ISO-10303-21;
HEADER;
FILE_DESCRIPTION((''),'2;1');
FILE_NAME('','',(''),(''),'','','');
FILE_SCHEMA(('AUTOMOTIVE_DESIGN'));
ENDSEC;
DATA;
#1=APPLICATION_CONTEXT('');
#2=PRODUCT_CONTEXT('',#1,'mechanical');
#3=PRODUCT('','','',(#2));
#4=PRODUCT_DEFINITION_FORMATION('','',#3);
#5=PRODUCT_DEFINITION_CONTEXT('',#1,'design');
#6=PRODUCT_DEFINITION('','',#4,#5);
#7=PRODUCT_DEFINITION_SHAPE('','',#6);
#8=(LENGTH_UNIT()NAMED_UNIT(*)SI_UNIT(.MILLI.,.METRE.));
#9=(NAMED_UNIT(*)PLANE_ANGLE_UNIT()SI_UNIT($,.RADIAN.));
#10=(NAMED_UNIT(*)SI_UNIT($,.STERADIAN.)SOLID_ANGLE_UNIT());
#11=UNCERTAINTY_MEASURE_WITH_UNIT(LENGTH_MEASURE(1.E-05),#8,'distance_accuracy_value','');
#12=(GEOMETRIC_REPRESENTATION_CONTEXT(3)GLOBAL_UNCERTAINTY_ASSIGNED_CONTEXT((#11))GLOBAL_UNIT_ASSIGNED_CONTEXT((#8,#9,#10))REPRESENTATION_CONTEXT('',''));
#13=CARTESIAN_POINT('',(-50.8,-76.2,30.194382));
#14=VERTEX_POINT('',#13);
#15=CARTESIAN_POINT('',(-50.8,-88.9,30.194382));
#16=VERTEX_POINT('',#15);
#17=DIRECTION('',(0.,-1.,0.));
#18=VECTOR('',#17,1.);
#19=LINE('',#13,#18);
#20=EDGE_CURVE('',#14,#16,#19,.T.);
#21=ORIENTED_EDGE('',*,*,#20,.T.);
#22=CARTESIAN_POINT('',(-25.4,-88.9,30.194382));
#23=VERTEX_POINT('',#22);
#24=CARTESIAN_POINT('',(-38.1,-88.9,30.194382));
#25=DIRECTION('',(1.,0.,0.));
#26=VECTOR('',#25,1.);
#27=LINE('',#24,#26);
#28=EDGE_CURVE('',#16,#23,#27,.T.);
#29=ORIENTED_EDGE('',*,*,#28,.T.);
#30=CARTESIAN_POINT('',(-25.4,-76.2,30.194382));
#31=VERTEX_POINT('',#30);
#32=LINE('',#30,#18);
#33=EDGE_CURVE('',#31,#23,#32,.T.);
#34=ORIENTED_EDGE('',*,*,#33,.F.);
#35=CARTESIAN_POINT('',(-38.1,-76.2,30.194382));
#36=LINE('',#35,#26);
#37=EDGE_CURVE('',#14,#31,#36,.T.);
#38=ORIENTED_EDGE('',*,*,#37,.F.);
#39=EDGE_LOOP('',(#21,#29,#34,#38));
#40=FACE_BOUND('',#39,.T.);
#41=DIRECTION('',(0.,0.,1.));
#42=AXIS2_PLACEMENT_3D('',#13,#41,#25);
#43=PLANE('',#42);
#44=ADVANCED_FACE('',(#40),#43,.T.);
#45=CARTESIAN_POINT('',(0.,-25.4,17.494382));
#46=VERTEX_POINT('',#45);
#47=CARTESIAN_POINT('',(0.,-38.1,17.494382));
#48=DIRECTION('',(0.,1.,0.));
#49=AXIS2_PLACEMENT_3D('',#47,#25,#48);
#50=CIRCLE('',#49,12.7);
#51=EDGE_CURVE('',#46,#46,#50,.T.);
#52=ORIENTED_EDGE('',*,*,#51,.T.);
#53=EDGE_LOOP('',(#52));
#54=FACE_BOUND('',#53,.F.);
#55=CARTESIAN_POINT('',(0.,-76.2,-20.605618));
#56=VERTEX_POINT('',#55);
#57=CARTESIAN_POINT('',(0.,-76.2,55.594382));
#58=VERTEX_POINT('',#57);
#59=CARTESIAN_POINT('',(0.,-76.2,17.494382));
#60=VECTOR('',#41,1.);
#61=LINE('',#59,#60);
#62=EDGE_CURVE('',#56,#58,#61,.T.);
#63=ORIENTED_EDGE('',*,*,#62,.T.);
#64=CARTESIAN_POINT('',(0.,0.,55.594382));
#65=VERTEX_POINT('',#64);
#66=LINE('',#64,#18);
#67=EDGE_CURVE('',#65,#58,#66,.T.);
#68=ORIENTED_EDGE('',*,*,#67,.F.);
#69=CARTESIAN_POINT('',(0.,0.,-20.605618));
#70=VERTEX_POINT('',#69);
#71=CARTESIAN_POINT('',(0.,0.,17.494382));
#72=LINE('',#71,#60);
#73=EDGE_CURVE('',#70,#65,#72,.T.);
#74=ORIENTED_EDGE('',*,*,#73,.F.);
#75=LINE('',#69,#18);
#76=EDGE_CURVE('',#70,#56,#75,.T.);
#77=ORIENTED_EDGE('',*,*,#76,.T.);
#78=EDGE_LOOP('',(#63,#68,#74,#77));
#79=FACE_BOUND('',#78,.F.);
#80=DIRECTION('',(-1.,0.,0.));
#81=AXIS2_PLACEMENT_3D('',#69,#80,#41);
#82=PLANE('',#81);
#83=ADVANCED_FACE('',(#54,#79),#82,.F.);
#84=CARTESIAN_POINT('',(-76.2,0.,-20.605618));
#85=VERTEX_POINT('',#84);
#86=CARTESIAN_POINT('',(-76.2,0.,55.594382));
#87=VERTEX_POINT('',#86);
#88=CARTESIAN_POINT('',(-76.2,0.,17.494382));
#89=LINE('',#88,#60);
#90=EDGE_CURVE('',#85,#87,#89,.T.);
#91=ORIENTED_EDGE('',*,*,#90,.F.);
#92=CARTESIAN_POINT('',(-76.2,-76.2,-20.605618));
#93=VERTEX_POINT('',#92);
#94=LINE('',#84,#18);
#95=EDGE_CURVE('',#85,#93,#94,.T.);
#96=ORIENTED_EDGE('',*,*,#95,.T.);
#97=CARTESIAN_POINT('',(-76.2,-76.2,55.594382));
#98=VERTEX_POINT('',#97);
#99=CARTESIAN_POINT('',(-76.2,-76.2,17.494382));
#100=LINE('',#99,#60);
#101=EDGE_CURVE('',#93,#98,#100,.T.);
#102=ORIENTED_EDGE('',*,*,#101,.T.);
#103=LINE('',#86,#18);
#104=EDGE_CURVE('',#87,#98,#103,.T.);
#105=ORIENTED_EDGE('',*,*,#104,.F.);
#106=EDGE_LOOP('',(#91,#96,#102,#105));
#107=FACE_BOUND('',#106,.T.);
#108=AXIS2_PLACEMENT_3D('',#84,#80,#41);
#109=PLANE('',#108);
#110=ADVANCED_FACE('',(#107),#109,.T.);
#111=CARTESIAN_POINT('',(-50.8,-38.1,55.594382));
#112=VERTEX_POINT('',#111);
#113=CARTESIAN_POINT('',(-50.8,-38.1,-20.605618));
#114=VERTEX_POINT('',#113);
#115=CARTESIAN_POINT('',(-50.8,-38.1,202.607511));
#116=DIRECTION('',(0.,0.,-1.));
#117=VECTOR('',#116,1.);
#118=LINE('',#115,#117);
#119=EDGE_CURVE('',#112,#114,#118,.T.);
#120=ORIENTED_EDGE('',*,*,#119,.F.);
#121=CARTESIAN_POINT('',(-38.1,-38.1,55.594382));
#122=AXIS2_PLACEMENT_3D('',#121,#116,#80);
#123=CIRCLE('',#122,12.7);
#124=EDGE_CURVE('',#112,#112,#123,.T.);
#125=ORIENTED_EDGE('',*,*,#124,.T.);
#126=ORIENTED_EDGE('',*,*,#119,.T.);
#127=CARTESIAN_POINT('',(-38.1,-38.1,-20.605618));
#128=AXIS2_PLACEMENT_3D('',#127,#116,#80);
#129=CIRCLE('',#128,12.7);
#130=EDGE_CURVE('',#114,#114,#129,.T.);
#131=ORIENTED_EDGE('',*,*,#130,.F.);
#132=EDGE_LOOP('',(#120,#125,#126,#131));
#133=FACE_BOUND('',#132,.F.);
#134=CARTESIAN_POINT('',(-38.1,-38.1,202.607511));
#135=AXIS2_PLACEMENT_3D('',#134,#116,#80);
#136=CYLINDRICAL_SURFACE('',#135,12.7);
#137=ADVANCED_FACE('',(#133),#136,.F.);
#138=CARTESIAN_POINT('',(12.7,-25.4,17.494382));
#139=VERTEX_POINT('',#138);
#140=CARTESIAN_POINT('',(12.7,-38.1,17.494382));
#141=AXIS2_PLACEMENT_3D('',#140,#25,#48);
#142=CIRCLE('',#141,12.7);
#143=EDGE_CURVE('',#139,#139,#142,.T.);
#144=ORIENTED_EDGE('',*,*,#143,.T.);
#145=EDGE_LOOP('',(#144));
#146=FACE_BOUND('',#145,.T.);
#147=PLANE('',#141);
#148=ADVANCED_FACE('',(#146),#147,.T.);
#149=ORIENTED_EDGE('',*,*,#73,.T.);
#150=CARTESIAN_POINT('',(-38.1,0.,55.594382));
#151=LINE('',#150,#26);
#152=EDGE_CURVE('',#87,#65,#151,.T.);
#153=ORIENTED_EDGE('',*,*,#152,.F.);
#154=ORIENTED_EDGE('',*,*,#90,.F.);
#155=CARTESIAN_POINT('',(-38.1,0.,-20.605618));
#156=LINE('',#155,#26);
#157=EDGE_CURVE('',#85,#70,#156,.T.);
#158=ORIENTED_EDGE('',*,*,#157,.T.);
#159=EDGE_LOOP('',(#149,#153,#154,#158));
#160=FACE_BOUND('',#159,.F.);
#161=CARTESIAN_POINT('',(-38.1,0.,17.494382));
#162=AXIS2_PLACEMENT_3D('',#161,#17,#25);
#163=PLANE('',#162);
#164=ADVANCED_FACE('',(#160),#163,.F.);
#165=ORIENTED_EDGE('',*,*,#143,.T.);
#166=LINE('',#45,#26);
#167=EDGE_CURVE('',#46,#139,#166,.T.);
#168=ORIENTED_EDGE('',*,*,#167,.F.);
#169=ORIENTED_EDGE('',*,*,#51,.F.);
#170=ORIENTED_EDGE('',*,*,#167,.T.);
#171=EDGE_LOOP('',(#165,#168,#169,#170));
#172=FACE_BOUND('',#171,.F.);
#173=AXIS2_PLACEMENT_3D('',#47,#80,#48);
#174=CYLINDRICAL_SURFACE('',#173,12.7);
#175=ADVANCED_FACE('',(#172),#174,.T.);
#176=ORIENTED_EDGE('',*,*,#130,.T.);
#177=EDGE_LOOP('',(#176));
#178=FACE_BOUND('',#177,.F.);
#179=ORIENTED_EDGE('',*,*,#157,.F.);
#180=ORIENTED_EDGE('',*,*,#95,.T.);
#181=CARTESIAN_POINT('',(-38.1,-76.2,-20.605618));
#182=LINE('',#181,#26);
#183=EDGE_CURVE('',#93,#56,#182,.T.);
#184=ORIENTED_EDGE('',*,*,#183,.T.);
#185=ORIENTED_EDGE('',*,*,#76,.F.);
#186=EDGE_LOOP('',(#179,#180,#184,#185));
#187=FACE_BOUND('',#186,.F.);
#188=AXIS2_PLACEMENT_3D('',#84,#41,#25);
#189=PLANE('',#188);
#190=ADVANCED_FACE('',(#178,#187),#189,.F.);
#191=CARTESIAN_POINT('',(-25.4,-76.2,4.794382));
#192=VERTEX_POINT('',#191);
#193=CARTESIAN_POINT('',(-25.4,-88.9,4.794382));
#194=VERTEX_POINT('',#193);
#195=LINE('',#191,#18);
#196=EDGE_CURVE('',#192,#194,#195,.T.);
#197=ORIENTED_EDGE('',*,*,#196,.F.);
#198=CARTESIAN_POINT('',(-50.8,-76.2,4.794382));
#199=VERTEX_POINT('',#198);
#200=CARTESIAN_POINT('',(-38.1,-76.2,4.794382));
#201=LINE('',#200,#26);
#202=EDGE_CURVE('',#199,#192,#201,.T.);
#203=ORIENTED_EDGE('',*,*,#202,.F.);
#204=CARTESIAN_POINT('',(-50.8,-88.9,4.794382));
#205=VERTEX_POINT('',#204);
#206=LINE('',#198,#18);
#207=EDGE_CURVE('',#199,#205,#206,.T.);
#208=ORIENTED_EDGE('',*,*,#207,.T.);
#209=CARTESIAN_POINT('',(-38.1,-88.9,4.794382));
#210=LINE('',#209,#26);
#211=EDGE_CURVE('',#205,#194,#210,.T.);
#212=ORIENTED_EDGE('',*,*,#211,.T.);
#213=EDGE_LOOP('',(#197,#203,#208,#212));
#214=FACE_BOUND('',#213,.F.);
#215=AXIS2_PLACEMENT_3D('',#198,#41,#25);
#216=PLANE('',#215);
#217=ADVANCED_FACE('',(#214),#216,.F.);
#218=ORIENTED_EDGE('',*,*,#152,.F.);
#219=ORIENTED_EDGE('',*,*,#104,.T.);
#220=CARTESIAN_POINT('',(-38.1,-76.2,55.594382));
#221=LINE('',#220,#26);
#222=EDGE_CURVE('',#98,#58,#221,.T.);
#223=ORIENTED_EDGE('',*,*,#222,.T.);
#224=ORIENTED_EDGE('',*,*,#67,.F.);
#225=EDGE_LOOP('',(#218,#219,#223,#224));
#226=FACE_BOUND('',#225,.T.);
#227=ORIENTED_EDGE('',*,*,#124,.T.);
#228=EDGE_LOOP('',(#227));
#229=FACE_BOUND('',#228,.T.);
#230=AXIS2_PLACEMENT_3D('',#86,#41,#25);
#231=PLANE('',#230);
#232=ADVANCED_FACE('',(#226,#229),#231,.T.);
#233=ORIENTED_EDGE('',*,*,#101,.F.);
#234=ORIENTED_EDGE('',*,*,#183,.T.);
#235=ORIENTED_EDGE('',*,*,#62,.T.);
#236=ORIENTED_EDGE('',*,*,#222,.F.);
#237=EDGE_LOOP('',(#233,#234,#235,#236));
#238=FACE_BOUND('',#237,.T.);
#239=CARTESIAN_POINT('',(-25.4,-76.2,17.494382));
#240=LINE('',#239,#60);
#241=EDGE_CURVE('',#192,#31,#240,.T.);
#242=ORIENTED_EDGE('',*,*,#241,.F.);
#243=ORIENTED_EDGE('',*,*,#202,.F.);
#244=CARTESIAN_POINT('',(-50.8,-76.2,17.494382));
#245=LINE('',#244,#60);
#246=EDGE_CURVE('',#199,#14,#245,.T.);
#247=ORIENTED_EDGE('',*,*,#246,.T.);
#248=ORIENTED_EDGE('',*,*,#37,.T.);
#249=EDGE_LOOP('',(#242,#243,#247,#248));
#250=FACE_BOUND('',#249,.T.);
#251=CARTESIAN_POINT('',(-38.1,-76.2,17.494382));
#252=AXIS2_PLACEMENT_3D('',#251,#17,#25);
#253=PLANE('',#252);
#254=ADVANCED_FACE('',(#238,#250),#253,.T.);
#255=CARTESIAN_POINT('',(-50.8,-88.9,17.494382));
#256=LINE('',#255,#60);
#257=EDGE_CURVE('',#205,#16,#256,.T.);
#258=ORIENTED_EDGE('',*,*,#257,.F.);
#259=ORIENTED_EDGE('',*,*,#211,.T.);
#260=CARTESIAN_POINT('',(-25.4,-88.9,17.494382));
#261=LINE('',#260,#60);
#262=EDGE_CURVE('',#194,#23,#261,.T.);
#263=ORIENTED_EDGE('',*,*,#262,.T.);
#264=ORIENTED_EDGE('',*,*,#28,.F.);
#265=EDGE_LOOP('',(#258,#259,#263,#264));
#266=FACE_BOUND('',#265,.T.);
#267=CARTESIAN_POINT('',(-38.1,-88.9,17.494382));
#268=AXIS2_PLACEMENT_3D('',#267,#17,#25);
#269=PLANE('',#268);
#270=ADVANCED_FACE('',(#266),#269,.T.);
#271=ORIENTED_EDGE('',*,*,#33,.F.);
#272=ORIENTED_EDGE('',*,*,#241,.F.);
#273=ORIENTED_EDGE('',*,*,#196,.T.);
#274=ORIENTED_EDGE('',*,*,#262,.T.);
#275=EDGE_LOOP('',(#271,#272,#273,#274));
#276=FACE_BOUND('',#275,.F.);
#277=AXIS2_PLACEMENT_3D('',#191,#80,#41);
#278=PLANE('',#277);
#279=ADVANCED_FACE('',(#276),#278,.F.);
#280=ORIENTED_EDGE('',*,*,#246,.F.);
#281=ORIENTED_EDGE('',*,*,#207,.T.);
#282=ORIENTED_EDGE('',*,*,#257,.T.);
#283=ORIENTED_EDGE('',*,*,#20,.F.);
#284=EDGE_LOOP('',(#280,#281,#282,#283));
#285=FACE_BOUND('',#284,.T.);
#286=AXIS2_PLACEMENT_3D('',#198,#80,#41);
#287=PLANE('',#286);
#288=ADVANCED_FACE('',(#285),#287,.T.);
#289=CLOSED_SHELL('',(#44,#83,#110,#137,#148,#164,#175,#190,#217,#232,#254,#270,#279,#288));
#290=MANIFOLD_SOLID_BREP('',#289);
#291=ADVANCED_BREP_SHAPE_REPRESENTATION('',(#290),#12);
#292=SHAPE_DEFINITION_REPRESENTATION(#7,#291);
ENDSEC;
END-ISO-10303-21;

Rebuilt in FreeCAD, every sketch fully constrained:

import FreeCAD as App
import Part
import Sketcher
Q = App.Units.Quantity

doc = App.newDocument("Part")
params = doc.addObject("Spreadsheet::Sheet", "Params")
for row, (alias, value) in enumerate([
    ("sketch1_width", "3 in"),
    ("pad1_length", "3 in"),
    ("sketch2_width", "1 in"),
    ("pad2_length", "0.5 in"),
    ("sketch3_diameter", "1 in"),
    ("pad3_length", "0.5 in"),
    ("sketch4_diameter", "1 in"),
    ("hole_diameter", "1 in"),
], start=1):
    params.set(f"A{row}", alias)
    params.set(f"B{row}", "=" + value)
    params.setAlias(f"B{row}", alias)

body = doc.addObject("PartDesign::Body", "Body")

# Sketch on XZ plane
sketch1 = body.newObject("Sketcher::SketchObject", "Sketch")
sketch1.AttachmentSupport = (doc.getObject("XZ_Plane"), [""])
sketch1.MapMode = "FlatFace"
sketch1.addGeometry(Part.LineSegment(App.Vector(-76, 56, 0), App.Vector(-76, -21, 0)), False)
sketch1.addGeometry(Part.LineSegment(App.Vector(-76, -21, 0), App.Vector(0, -21, 0)), False)
sketch1.addGeometry(Part.LineSegment(App.Vector(0, -21, 0), App.Vector(0, 56, 0)), False)
sketch1.addGeometry(Part.LineSegment(App.Vector(0, 56, 0), App.Vector(-76, 56, 0)), False)
sketch1.addConstraint(Sketcher.Constraint("Coincident", 0, 2, 1, 1))
sketch1.addConstraint(Sketcher.Constraint("Coincident", 1, 2, 2, 1))
sketch1.addConstraint(Sketcher.Constraint("Coincident", 2, 2, 3, 1))
sketch1.addConstraint(Sketcher.Constraint("Coincident", 3, 2, 0, 1))
sketch1.addConstraint(Sketcher.Constraint("Vertical", 0))
sketch1.addConstraint(Sketcher.Constraint("Horizontal", 1))
sketch1.addConstraint(Sketcher.Constraint("Vertical", 2))
sketch1.addConstraint(Sketcher.Constraint("Horizontal", 3))
sketch1.addConstraint(Sketcher.Constraint("PointOnObject", 1, 2, -2))
sketch1.addConstraint(Sketcher.Constraint("Equal", 3, 0))
sketch1.addConstraint(Sketcher.Constraint("DistanceX", 1, 1, 1, 2, Q("3 in")))
sketch1.addConstraint(Sketcher.Constraint("DistanceY", 0, 2, -1, 1, Q("20.605618 mm")))
sketch1.setExpression("Constraints[10]", "Params.sketch1_width")
pad1 = body.newObject("PartDesign::Pad", "Pad")
pad1.Profile = sketch1
pad1.setExpression("Length", "Params.pad1_length")

# Sketch on XZ plane
sketch2 = body.newObject("Sketcher::SketchObject", "Sketch001")
sketch2.AttachmentSupport = (doc.getObject("XZ_Plane"), [""])
sketch2.MapMode = "FlatFace"
sketch2.AttachmentOffset = App.Placement(App.Vector(0, 0, 3 * 25.4), App.Rotation())
sketch2.addGeometry(Part.LineSegment(App.Vector(-51, 30, 0), App.Vector(-51, 5, 0)), False)
sketch2.addGeometry(Part.LineSegment(App.Vector(-51, 5, 0), App.Vector(-25, 5, 0)), False)
sketch2.addGeometry(Part.LineSegment(App.Vector(-25, 5, 0), App.Vector(-25, 30, 0)), False)
sketch2.addGeometry(Part.LineSegment(App.Vector(-25, 30, 0), App.Vector(-51, 30, 0)), False)
sketch2.addConstraint(Sketcher.Constraint("Coincident", 0, 2, 1, 1))
sketch2.addConstraint(Sketcher.Constraint("Coincident", 1, 2, 2, 1))
sketch2.addConstraint(Sketcher.Constraint("Coincident", 2, 2, 3, 1))
sketch2.addConstraint(Sketcher.Constraint("Coincident", 3, 2, 0, 1))
sketch2.addConstraint(Sketcher.Constraint("Vertical", 0))
sketch2.addConstraint(Sketcher.Constraint("Horizontal", 1))
sketch2.addConstraint(Sketcher.Constraint("Vertical", 2))
sketch2.addConstraint(Sketcher.Constraint("Horizontal", 3))
sketch2.addConstraint(Sketcher.Constraint("Equal", 3, 0))
sketch2.addConstraint(Sketcher.Constraint("DistanceX", 1, 1, 1, 2, Q("1 in")))
sketch2.addConstraint(Sketcher.Constraint("DistanceX", 0, 2, -1, 1, Q("2 in")))
sketch2.addConstraint(Sketcher.Constraint("DistanceY", -1, 1, 0, 2, Q("4.794382 mm")))
sketch2.setExpression("Constraints[9]", "Params.sketch2_width")
pad2 = body.newObject("PartDesign::Pad", "Pad001")
pad2.Profile = sketch2
pad2.setExpression("Length", "Params.pad2_length")

# Sketch on YZ plane
sketch3 = body.newObject("Sketcher::SketchObject", "Sketch002")
sketch3.AttachmentSupport = (doc.getObject("YZ_Plane"), [""])
sketch3.MapMode = "FlatFace"
sketch3.addGeometry(Part.Circle(App.Vector(-38, 17, 0), App.Vector(0, 0, 1), 13), False)
sketch3.addConstraint(Sketcher.Constraint("Diameter", 0, Q("1 in")))
sketch3.addConstraint(Sketcher.Constraint("DistanceX", 0, 3, -1, 1, Q("1.5 in")))
sketch3.addConstraint(Sketcher.Constraint("DistanceY", -1, 1, 0, 3, Q("17.494382 mm")))
sketch3.setExpression("Constraints[0]", "Params.sketch3_diameter")
pad3 = body.newObject("PartDesign::Pad", "Pad002")
pad3.Profile = sketch3
pad3.setExpression("Length", "Params.pad3_length")

# Sketch on XY plane
sketch4 = body.newObject("Sketcher::SketchObject", "Sketch003")
sketch4.AttachmentSupport = (doc.getObject("XY_Plane"), [""])
sketch4.MapMode = "FlatFace"
sketch4.AttachmentOffset = App.Placement(App.Vector(0, 0, 55.594382), App.Rotation())
sketch4.addGeometry(Part.Circle(App.Vector(-38, -38, 0), App.Vector(0, 0, 1), 13), False)
sketch4.addConstraint(Sketcher.Constraint("Diameter", 0, Q("1 in")))
sketch4.addConstraint(Sketcher.Constraint("DistanceX", 0, 3, -1, 1, Q("1.5 in")))
sketch4.addConstraint(Sketcher.Constraint("DistanceY", 0, 3, -1, 1, Q("1.5 in")))
sketch4.setExpression("Constraints[0]", "Params.sketch4_diameter")
doc.recompute()
hole = body.newObject("PartDesign::Hole", "Hole")
hole.Profile = sketch4
hole.ThreadType = "None"
hole.setExpression("Diameter", "Params.hole_diameter")
hole.DepthType = "ThroughAll"

doc.recompute()
